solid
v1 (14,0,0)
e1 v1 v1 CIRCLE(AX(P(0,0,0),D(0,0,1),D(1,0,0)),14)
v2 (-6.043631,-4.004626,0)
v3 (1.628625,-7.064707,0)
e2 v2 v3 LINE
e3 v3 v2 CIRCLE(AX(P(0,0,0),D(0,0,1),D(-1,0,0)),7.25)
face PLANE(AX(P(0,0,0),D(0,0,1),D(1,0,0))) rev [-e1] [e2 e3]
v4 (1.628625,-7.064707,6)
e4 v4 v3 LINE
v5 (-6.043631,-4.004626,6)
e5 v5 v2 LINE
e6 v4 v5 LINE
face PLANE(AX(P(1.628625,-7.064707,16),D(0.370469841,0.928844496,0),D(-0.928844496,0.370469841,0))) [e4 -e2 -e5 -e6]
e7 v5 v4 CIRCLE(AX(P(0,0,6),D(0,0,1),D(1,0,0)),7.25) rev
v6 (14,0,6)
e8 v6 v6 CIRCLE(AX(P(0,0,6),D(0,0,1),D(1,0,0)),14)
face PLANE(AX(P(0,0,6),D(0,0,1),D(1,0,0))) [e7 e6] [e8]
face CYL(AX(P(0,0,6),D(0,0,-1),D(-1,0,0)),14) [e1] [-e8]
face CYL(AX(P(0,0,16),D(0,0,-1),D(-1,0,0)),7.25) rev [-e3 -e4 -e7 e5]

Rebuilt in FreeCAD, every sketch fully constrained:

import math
import FreeCAD as App
import Part
import Sketcher

V = App.Vector

doc = App.newDocument("Part")
body = doc.addObject("PartDesign::Body", "Body")

# Sketch on XY plane
sketch1 = body.newObject("Sketcher::SketchObject", "Sketch")
sketch1.AttachmentSupport = (doc.getObject("XY_Plane"), [""])
sketch1.MapMode = "FlatFace"
sketch1.addGeometry(Part.Circle(V(0, 0, 0), V(0, 0, 1), 14), False)
sketch1.addConstraint([
    Sketcher.Constraint("Coincident", 0, 3, -1, 1),
    Sketcher.Constraint("Diameter", 0, 28.0),
])
pad1 = body.newObject("PartDesign::Pad", "Pad")
pad1.Profile = sketch1
pad1.Length = 6

# Sketch on XY plane
sketch2 = body.newObject("Sketcher::SketchObject", "Sketch001")
sketch2.AttachmentSupport = (doc.getObject("XY_Plane"), [""])
sketch2.MapMode = "FlatFace"
sketch2.addGeometry([
    Part.LineSegment(V(-6.043631, -4.004626, 0), V(1.628625, -7.064707, 0)),
    Part.ArcOfCircle(Part.Circle(V(0, 0, 0), V(0, 0, 1), 7.25), math.radians(-77.018413), math.radians(213.52922)),
], False)
sketch2.addConstraint([
    Sketcher.Constraint("Coincident", 0, 1, 1, 2),
    Sketcher.Constraint("Coincident", 1, 1, 0, 2),
    Sketcher.Constraint("Coincident", 1, 3, -1, 1),
    Sketcher.Constraint("Radius", 1, 7.25),
    Sketcher.Constraint("Distance", 0, 8.26),
    Sketcher.Constraint("DistanceX", 0, 1, -1, 1, 6.043631),
])
pocket1 = body.newObject("PartDesign::Pocket", "Pocket")
pocket1.Profile = sketch2
pocket1.Length = 16
pocket1.Reversed = True

doc.recompute()
